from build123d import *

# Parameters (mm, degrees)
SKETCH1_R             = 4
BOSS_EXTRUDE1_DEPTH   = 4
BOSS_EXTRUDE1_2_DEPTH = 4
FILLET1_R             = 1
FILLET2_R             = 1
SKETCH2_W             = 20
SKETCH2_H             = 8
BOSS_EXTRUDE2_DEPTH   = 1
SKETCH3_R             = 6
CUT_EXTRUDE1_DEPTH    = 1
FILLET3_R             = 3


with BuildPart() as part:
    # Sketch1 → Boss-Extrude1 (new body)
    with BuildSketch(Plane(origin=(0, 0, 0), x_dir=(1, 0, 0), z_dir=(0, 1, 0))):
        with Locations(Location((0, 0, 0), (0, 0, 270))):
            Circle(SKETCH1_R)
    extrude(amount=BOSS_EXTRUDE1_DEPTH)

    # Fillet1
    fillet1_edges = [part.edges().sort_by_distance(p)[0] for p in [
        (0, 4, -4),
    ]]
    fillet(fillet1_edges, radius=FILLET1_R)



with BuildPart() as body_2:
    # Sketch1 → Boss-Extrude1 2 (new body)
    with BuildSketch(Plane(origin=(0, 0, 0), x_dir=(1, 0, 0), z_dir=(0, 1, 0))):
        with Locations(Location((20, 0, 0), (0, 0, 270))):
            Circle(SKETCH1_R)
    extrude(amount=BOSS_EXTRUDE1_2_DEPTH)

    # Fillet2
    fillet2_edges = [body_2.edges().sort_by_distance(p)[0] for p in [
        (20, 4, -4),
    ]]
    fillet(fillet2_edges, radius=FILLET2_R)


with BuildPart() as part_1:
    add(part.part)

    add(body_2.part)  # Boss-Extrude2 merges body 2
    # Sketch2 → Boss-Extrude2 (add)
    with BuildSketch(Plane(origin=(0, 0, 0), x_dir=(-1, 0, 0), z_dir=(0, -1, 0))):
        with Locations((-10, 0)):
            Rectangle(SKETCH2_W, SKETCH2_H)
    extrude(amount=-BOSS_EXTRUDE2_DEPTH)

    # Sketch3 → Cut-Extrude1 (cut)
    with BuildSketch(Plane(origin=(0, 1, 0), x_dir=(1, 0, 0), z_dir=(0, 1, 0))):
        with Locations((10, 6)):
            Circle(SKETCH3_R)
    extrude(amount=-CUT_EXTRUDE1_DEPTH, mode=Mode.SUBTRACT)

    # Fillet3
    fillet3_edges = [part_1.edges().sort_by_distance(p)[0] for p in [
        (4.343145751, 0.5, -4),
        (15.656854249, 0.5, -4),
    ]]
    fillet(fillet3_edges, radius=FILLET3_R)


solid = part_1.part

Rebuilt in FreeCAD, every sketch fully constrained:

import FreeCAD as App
import Part
import Sketcher

V = App.Vector


def edges_at(feature, points):
    """Names of the edges that pass closest to the given points."""
    edges = feature.Shape.Edges
    near = lambda p: min(range(len(edges)), key=lambda i: edges[i].distToShape(Part.Vertex(*p))[0])
    return sorted({f"Edge{near(p) + 1}" for p in points})

doc = App.newDocument("Part")
body = doc.addObject("PartDesign::Body", "Body")

sketch1 = body.newObject("Sketcher::SketchObject", "Sketch")
sketch1.AttachmentSupport = (doc.getObject("XZ_Plane"), [""])
sketch1.MapMode = "FlatFace"
sketch1.addGeometry(Part.Circle(V(0, 0, 0), V(0, 0, 1), 4), False)
sketch1.addConstraint([
    Sketcher.Constraint("Coincident", 0, 3, -1, 1),
    Sketcher.Constraint("Diameter", 0, 8.0),
])
pad1 = body.newObject("PartDesign::Pad", "Pad")
pad1.Profile = sketch1
pad1.Length = 4
pad1.Reversed = True
doc.recompute()

fillet = body.newObject("PartDesign::Fillet", "Fillet")
fillet.Base = (pad1, edges_at(pad1, [(0, 4, -4)]))
fillet.Radius = 1
body2 = doc.addObject("PartDesign::Body", "Body001")

sketch2 = body2.newObject("Sketcher::SketchObject", "Sketch001")
sketch2.AttachmentSupport = (doc.getObject("XZ_Plane001"), [""])
sketch2.MapMode = "FlatFace"
sketch2.addGeometry(Part.Circle(V(20, 0, 0), V(0, 0, 1), 4), False)
sketch2.addConstraint([
    Sketcher.Constraint("PointOnObject", 0, 3, -1),
    Sketcher.Constraint("Diameter", 0, 8.0),
    Sketcher.Constraint("DistanceX", -1, 1, 0, 3, 20.0),
])
pad2 = body2.newObject("PartDesign::Pad", "Pad001")
pad2.Profile = sketch2
pad2.Length = 4
pad2.Reversed = True
doc.recompute()

fillet2 = body2.newObject("PartDesign::Fillet", "Fillet001")
fillet2.Base = (pad2, edges_at(pad2, [(20, 4, -4)]))
fillet2.Radius = 1
body.AllowCompound = True
doc.recompute()

boolean = body.newObject("PartDesign::Boolean", "Boolean")
boolean.Type = "Fuse"
boolean.addObjects([body2])

sketch3 = body.newObject("Sketcher::SketchObject", "Sketch002")
sketch3.AttachmentSupport = (doc.getObject("XZ_Plane"), [""])
sketch3.MapMode = "FlatFace"
sketch3.addGeometry([
    Part.LineSegment(V(20, -4, 0), V(20, 4, 0)),
    Part.LineSegment(V(20, 4, 0), V(0, 4, 0)),
    Part.LineSegment(V(0, 4, 0), V(0, -4, 0)),
    Part.LineSegment(V(0, -4, 0), V(20, -4, 0)),
], False)
sketch3.addConstraint([
    Sketcher.Constraint("Coincident", 0, 2, 1, 1),
    Sketcher.Constraint("Coincident", 1, 2, 2, 1),
    Sketcher.Constraint("Coincident", 2, 2, 3, 1),
    Sketcher.Constraint("Coincident", 3, 2, 0, 1),
    Sketcher.Constraint("Vertical", 0),
    Sketcher.Constraint("Horizontal", 1),
    Sketcher.Constraint("Vertical", 2),
    Sketcher.Constraint("Horizontal", 3),
    Sketcher.Constraint("Symmetric", 1, 2, 2, 2, -1, 1),
    Sketcher.Constraint("DistanceX", 1, 2, 1, 1, 20.0),
    Sketcher.Constraint("DistanceY", 0, 1, 0, 2, 8.0),
])
pad3 = body.newObject("PartDesign::Pad", "Pad002")
pad3.Profile = sketch3
pad3.Length = 1
pad3.Reversed = True

sketch4 = body.newObject("Sketcher::SketchObject", "Sketch003")
sketch4.AttachmentSupport = (doc.getObject("XZ_Plane"), [""])
sketch4.MapMode = "FlatFace"
sketch4.AttachmentOffset = App.Placement(V(0, 0, -1), App.Rotation())
sketch4.addGeometry(Part.Circle(V(10, -6, 0), V(0, 0, 1), 6), False)
sketch4.addConstraint([
    Sketcher.Constraint("Diameter", 0, 12.0),
    Sketcher.Constraint("DistanceX", -1, 1, 0, 3, 10.0),
    Sketcher.Constraint("DistanceY", 0, 3, -1, 1, 6.0),
])
pocket1 = body.newObject("PartDesign::Pocket", "Pocket")
pocket1.Profile = sketch4
pocket1.Length = 1
pocket1.Reversed = True
doc.recompute()

fillet3 = body.newObject("PartDesign::Fillet", "Fillet002")
fillet3.Base = (pocket1, edges_at(pocket1, [(4.343, 0.5, -4), (15.657, 0.5, -4)]))
fillet3.Radius = 3

doc.recompute()
